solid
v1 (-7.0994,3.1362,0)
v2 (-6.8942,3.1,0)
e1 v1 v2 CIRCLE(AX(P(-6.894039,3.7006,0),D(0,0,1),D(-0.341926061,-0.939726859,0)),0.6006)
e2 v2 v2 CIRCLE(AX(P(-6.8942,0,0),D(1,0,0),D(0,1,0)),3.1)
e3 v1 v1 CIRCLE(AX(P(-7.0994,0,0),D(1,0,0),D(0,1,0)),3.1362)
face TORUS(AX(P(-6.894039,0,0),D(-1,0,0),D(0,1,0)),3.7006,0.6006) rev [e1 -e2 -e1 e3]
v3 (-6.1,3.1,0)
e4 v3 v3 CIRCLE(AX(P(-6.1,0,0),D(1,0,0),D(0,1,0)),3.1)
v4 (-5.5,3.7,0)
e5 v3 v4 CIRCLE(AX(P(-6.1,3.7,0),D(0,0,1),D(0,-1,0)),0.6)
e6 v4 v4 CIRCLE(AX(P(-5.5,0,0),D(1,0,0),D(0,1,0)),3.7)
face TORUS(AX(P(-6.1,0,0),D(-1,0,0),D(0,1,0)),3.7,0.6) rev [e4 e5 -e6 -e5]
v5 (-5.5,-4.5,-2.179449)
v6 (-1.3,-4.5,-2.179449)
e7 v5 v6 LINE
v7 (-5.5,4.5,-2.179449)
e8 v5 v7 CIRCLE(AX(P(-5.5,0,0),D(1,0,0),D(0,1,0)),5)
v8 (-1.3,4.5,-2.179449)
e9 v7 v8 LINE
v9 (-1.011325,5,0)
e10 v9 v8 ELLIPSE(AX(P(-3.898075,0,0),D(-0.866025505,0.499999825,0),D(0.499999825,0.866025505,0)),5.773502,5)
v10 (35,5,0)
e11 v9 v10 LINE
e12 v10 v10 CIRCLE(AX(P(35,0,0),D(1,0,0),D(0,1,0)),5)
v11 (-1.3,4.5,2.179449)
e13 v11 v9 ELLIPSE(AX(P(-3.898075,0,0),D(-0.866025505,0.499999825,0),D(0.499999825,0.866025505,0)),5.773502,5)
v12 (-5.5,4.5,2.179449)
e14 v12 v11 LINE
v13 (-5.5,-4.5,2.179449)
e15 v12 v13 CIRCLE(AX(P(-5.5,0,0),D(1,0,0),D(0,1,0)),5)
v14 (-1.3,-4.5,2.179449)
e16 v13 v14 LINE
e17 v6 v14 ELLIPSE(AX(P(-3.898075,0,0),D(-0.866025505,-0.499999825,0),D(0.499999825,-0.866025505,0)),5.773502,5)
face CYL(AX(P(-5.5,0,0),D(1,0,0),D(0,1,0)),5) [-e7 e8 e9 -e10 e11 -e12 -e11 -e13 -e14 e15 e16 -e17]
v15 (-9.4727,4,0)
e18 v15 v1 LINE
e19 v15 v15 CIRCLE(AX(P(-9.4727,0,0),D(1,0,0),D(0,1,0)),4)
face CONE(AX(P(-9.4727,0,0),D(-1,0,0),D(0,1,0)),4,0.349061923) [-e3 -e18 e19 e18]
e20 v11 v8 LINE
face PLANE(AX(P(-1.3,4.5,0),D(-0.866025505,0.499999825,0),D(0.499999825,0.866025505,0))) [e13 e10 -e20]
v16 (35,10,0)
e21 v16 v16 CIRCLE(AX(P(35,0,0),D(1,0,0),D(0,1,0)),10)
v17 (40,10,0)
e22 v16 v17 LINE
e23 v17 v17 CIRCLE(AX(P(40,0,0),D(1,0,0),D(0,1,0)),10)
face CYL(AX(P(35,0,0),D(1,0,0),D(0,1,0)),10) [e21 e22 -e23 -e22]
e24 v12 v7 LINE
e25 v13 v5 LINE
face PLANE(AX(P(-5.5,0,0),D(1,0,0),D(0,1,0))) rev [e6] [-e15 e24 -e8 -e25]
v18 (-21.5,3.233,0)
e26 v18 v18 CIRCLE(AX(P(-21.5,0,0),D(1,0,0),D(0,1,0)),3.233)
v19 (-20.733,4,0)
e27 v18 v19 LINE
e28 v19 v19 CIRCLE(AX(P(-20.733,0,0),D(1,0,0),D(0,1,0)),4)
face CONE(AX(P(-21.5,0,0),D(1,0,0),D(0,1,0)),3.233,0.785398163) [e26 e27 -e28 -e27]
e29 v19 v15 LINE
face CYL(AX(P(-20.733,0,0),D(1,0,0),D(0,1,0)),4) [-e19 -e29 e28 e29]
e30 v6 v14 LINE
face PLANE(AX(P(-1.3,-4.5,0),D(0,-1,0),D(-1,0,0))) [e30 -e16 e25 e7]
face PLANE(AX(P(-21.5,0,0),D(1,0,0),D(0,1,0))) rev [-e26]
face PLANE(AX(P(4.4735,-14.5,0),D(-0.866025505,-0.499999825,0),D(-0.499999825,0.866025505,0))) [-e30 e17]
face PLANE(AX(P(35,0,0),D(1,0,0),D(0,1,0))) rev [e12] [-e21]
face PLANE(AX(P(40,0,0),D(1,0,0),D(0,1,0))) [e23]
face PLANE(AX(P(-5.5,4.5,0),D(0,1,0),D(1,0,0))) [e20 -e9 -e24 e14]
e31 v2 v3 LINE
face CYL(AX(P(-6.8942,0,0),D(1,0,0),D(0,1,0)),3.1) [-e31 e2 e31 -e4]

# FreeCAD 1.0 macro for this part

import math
import FreeCAD as App
import Part
import Sketcher

V = App.Vector
Q = App.Units.Quantity


def add_polygon(sketch, points):
    """Adds a closed chain of lines whose ends are joined by coincident constraints."""
    first, n = sketch.GeometryCount, len(points)
    for a, b in zip(points, points[1:] + points[:1]):
        sketch.addGeometry(Part.LineSegment(App.Vector(*a, 0), App.Vector(*b, 0)), False)
    for i in range(n):
        sketch.addConstraint(Sketcher.Constraint("Coincident", first + i, 2, first + (i + 1) % n, 1))

doc = App.newDocument("Part")
body = doc.addObject("PartDesign::Body", "Body")

sketch1 = body.newObject("Sketcher::SketchObject", "Sketch")
sketch1.AttachmentSupport = (doc.getObject("XY_Plane"), [""])
sketch1.MapMode = "FlatFace"
add_polygon(sketch1, [(-6, 0), (40, 0), (40, 5), (-6, 5)])
sketch1.addConstraint([
    Sketcher.Constraint("Horizontal", 0),
    Sketcher.Constraint("Vertical", 1),
    Sketcher.Constraint("Horizontal", 2),
    Sketcher.Constraint("Vertical", 3),
    Sketcher.Constraint("PointOnObject", 0, 2, -1),
    Sketcher.Constraint("DistanceY", 1, 1, 1, 2, Q("5 mm")),
    Sketcher.Constraint("DistanceX", 0, 1, 0, 2, Q("45.5 mm")),
    Sketcher.Constraint("DistanceX", -1, 1, 0, 2, Q("40 mm")),
])
revolution = body.newObject("PartDesign::Revolution", "Revolution")
revolution.Profile = sketch1
revolution.ReferenceAxis = (sketch1, ["H_Axis"])
revolution.Angle = 360

sketch2 = body.newObject("Sketcher::SketchObject", "Sketch001")
sketch2.AttachmentSupport = (doc.getObject("XY_Plane"), [""])
sketch2.MapMode = "FlatFace"
add_polygon(sketch2, [(35, 0), (40, 0), (40, 10), (35, 10)])
sketch2.addConstraint([
    Sketcher.Constraint("Horizontal", 0),
    Sketcher.Constraint("Vertical", 1),
    Sketcher.Constraint("Horizontal", 2),
    Sketcher.Constraint("Vertical", 3),
    Sketcher.Constraint("PointOnObject", 0, 2, -1),
    Sketcher.Constraint("DistanceX", 0, 1, 0, 2, Q("5 mm")),
    Sketcher.Constraint("DistanceY", 1, 1, 1, 2, Q("10 mm")),
    Sketcher.Constraint("DistanceX", -1, 1, 0, 2, Q("40 mm")),
])
revolution2 = body.newObject("PartDesign::Revolution", "Revolution001")
revolution2.Profile = sketch2
revolution2.ReferenceAxis = (sketch2, ["H_Axis"])
revolution2.Angle = 360

sketch3 = body.newObject("Sketcher::SketchObject", "Sketch002")
sketch3.AttachmentSupport = (doc.getObject("XY_Plane"), [""])
sketch3.MapMode = "FlatFace"
sketch3.addGeometry([
    Part.LineSegment(V(-21.5, 0, 0), V(-4.5, 0, 0)),
    Part.LineSegment(V(-4.5, 0, 0), V(-4.5, 4, 0)),
    Part.LineSegment(V(-4.5, 4, 0), V(-5.5, 4, 0)),
    Part.LineSegment(V(-5.5, 4, 0), V(-5.5, 3.7, 0)),
    Part.ArcOfCircle(Part.Circle(V(-6.1, 3.7, 0), V(0, 0, 1), 0.6), math.radians(-90), math.radians(0)),
    Part.LineSegment(V(-6.1, 3.1, 0), V(-6.89, 3.1, 0)),
    Part.ArcOfCircle(Part.Circle(V(-6.89, 3.7, 0), V(0, 0, 1), 0.6), math.radians(-110), math.radians(-90)),
    Part.LineSegment(V(-7.1, 3.14, 0), V(-9.47, 4, 0)),
    Part.LineSegment(V(-9.47, 4, 0), V(-20.73, 4, 0)),
    Part.LineSegment(V(-20.73, 4, 0), V(-21.5, 3.23, 0)),
    Part.LineSegment(V(-21.5, 3.23, 0), V(-21.5, 0, 0)),
], False)
sketch3.addConstraint([
    Sketcher.Constraint("Coincident", 0, 2, 1, 1),
    Sketcher.Constraint("Coincident", 1, 2, 2, 1),
    Sketcher.Constraint("Coincident", 2, 2, 3, 1),
    Sketcher.Constraint("Tangent", 3, 2, 4, 2),
    Sketcher.Constraint("Tangent", 4, 1, 5, 1),
    Sketcher.Constraint("Tangent", 5, 2, 6, 2),
    Sketcher.Constraint("Tangent", 6, 1, 7, 1),
    Sketcher.Constraint("Coincident", 7, 2, 8, 1),
    Sketcher.Constraint("Coincident", 8, 2, 9, 1),
    Sketcher.Constraint("Coincident", 9, 2, 10, 1),
    Sketcher.Constraint("Coincident", 10, 2, 0, 1),
    Sketcher.Constraint("Horizontal", 0),
    Sketcher.Constraint("Vertical", 1),
    Sketcher.Constraint("Horizontal", 2),
    Sketcher.Constraint("Vertical", 3),
    Sketcher.Constraint("Horizontal", 5),
    Sketcher.Constraint("Horizontal", 8),
    Sketcher.Constraint("Vertical", 10),
    Sketcher.Constraint("Equal", 4, 6),
    Sketcher.Constraint("PointOnObject", 0, 2, -1),
    Sketcher.Constraint("Horizontal", 2, 2, 7, 2),
    Sketcher.Constraint("Radius", 4, Q("0.6 mm")),
    Sketcher.Constraint("DistanceX", 0, 1, 0, 2, Q("17 mm")),
    Sketcher.Constraint("DistanceX", 2, 2, 2, 1, Q("1 mm")),
    Sketcher.Constraint("DistanceY", 1, 1, 1, 2, Q("4 mm")),
    Sketcher.Constraint("Angle", 7, Q("160.0002 deg")),
    Sketcher.Constraint("Angle", 9, Q("-135 deg")),
    Sketcher.Constraint("DistanceY", 3, 2, 3, 1, Q("0.3 mm")),
    Sketcher.Constraint("DistanceX", 4, 3, -1, 1, Q("6.1 mm")),
    Sketcher.Constraint("DistanceY", 10, 2, 10, 1, Q("3.233 mm")),
    Sketcher.Constraint("DistanceX", 5, 2, 5, 1, Q("0.7942 mm")),
])
revolution3 = body.newObject("PartDesign::Revolution", "Revolution002")
revolution3.Profile = sketch3
revolution3.ReferenceAxis = (sketch3, ["H_Axis"])
revolution3.Angle = 360

sketch4 = body.newObject("Sketcher::SketchObject", "Sketch003")
sketch4.AttachmentSupport = (doc.getObject("XY_Plane"), [""])
sketch4.MapMode = "FlatFace"
add_polygon(sketch4, [(-32, 14.5), (-32, -14.5), (4.5, -14.5), (-1.3, -4.5), (-5.5, -4.5), (-5.5, -9.5), (-26.5, -9.5), (-26.5, 9.5), (-5.5, 9.5), (-5.5, 4.5), (-1.3, 4.5), (4.5, 14.5)])
sketch4.addConstraint([
    Sketcher.Constraint("Vertical", 0),
    Sketcher.Constraint("Horizontal", 1),
    Sketcher.Constraint("Horizontal", 3),
    Sketcher.Constraint("Vertical", 4),
    Sketcher.Constraint("Horizontal", 5),
    Sketcher.Constraint("Vertical", 6),
    Sketcher.Constraint("Horizontal", 7),
    Sketcher.Constraint("Vertical", 8),
    Sketcher.Constraint("Horizontal", 9),
    Sketcher.Constraint("Horizontal", 11),
    Sketcher.Constraint("Symmetric", 4, 2, 7, 2, -1),
    Sketcher.Constraint("Symmetric", 2, 2, 9, 2, -1),
    Sketcher.Constraint("Symmetric", 1, 2, 10, 2, -1),
    Sketcher.Constraint("DistanceX", 5, 2, 5, 1, Q("21 mm")),
    Sketcher.Constraint("DistanceY", 0, 2, 0, 1, Q("29 mm")),
    Sketcher.Constraint("DistanceY", 4, 2, 4, 1, Q("5 mm")),
    Sketcher.Constraint("DistanceY", 6, 1, 6, 2, Q("19 mm")),
    Sketcher.Constraint("Angle", 2, Q("120 deg")),
    Sketcher.Constraint("DistanceX", 3, 2, 3, 1, Q("4.2 mm")),
    Sketcher.Constraint("DistanceX", 0, 2, -1, 1, Q("32 mm")),
    Sketcher.Constraint("DistanceX", 2, 2, -1, 1, Q("1.3 mm")),
])
pocket1 = body.newObject("PartDesign::Pocket", "Pocket")
pocket1.Profile = sketch4
pocket1.Length = 20
pocket1.Midplane = True

doc.recompute()
